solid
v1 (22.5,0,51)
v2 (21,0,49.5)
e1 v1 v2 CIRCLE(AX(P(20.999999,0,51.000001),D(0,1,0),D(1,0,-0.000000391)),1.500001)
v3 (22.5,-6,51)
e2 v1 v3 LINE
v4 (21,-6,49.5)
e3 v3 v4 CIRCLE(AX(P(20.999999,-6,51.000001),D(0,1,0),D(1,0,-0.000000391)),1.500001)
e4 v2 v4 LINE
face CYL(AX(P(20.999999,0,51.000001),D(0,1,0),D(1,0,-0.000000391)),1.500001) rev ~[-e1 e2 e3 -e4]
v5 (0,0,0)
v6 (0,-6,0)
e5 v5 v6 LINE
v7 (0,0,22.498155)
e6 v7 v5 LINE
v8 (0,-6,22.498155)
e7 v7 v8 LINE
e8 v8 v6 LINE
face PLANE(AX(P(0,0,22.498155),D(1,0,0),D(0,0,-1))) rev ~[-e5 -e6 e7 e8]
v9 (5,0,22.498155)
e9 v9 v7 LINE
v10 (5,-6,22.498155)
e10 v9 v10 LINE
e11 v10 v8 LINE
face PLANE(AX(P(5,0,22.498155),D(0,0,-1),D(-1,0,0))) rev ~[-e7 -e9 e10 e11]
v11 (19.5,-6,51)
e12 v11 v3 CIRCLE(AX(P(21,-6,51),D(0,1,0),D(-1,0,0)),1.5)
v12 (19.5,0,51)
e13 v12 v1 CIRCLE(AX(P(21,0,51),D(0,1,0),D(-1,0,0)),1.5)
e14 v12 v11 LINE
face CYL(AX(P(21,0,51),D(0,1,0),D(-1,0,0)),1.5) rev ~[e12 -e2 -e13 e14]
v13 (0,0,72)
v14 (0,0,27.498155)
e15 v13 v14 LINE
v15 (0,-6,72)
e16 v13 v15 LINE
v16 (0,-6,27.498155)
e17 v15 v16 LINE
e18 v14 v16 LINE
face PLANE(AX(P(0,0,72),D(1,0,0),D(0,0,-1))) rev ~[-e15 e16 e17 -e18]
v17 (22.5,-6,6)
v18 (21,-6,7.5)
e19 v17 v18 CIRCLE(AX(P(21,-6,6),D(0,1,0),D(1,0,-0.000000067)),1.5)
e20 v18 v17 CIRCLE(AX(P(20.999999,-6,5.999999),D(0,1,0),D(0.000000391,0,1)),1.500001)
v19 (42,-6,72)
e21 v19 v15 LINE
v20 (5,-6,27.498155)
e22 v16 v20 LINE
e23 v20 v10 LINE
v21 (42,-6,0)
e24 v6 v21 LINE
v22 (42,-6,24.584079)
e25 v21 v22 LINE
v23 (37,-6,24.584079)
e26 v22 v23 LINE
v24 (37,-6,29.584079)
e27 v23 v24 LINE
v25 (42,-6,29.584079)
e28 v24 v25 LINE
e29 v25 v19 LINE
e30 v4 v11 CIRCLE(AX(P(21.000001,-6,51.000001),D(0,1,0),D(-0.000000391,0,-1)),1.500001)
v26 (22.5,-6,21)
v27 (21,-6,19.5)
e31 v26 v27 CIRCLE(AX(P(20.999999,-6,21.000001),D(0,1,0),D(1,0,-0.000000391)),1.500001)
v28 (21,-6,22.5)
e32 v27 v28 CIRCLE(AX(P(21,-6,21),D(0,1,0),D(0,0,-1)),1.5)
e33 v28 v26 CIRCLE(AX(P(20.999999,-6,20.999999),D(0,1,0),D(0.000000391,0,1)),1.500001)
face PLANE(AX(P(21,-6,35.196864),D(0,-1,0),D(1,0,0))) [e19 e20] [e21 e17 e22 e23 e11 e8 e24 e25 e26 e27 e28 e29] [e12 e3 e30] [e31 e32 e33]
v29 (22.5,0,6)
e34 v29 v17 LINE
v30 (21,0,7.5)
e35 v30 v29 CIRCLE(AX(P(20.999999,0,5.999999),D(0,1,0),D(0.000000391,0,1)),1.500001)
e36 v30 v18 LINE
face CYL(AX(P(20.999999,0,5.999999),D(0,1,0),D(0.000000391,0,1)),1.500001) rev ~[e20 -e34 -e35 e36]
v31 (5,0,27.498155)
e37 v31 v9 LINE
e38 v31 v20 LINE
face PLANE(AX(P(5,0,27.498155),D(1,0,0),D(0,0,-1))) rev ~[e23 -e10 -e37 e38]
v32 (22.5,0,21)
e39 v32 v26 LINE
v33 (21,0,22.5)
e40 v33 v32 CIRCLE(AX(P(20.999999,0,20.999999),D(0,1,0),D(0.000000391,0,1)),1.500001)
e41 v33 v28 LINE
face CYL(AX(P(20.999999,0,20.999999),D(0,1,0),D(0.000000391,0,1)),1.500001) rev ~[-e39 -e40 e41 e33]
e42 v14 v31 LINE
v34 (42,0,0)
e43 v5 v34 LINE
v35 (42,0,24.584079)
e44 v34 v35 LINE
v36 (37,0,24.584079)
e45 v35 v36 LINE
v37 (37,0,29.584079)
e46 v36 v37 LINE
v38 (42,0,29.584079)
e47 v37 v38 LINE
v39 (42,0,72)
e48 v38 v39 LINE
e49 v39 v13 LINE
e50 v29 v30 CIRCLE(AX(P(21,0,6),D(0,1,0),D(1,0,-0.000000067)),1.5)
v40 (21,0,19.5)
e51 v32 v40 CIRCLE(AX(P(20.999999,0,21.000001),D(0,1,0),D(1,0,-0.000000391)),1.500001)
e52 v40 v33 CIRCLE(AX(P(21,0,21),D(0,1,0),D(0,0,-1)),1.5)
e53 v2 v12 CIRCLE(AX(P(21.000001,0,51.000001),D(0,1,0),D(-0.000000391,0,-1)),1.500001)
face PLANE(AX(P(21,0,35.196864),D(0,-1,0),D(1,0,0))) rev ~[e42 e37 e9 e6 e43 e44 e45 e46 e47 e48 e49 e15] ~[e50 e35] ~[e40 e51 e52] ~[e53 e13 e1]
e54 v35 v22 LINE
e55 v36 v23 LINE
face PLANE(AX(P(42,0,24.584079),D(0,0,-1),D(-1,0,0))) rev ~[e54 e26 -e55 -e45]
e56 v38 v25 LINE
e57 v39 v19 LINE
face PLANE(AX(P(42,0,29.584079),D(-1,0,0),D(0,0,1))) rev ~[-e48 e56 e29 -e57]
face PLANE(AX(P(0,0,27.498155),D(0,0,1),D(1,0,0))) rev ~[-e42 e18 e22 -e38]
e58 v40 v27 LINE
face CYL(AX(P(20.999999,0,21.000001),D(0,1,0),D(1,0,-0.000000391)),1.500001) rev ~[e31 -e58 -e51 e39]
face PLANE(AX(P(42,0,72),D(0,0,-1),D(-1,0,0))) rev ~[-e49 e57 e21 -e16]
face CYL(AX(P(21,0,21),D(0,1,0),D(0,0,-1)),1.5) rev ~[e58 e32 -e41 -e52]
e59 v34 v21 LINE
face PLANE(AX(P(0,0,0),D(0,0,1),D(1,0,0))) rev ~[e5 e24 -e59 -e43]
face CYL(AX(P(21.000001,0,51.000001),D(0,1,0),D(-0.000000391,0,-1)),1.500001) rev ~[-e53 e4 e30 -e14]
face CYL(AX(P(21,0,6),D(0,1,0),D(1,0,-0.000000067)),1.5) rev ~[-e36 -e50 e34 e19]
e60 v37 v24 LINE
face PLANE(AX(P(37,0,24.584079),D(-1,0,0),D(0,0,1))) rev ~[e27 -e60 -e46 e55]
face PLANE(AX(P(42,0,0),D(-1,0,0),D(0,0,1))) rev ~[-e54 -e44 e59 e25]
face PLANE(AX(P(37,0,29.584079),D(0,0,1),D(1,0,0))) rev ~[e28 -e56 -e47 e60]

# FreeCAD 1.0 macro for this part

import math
import FreeCAD as App
import Part
import Sketcher
Q = App.Units.Quantity

doc = App.newDocument("Part")
body = doc.addObject("PartDesign::Body", "Body")

# Sketch on XZ plane
sketch1 = body.newObject("Sketcher::SketchObject", "Sketch")
sketch1.AttachmentSupport = (doc.getObject("XZ_Plane"), [""])
sketch1.MapMode = "FlatFace"
sketch1.addGeometry([
    Part.LineSegment(App.Vector(0, 22.498155, 0), App.Vector(0, 0, 0)),  # 0
    Part.LineSegment(App.Vector(0, 0, 0), App.Vector(42, 0, 0)),  # 1
    Part.LineSegment(App.Vector(42, 0, 0), App.Vector(42, 24.584079, 0)),  # 2
    Part.LineSegment(App.Vector(42, 24.584079, 0), App.Vector(37, 24.584079, 0)),  # 3
    Part.LineSegment(App.Vector(37, 24.584079, 0), App.Vector(37, 29.584079, 0)),  # 4
    Part.LineSegment(App.Vector(37, 29.584079, 0), App.Vector(42, 29.584079, 0)),  # 5
    Part.LineSegment(App.Vector(42, 29.584079, 0), App.Vector(42, 72, 0)),  # 6
    Part.LineSegment(App.Vector(42, 72, 0), App.Vector(0, 72, 0)),  # 7
    Part.LineSegment(App.Vector(0, 72, 0), App.Vector(0, 27.498155, 0)),  # 8
    Part.LineSegment(App.Vector(0, 27.498155, 0), App.Vector(5, 27.498155, 0)),  # 9
    Part.LineSegment(App.Vector(5, 27.498155, 0), App.Vector(5, 22.498155, 0)),  # 10
    Part.LineSegment(App.Vector(5, 22.498155, 0), App.Vector(0, 22.498155, 0)),  # 11
    Part.ArcOfCircle(Part.Circle(App.Vector(20.999999, 5.999999, 0), App.Vector(0, 0, 1), 1.500001), math.radians(0.000022), math.radians(89.999978)),  # 12
    Part.ArcOfCircle(Part.Circle(App.Vector(21, 6, 0), App.Vector(0, 0, 1), 1.5), math.radians(90.000004), math.radians(359.999996)),  # 13
    Part.ArcOfCircle(Part.Circle(App.Vector(20.999999, 21.000001, 0), App.Vector(0, 0, 1), 1.500001), math.radians(-89.999978), math.radians(-0.000022)),  # 14
    Part.ArcOfCircle(Part.Circle(App.Vector(21, 21, 0), App.Vector(0, 0, 1), 1.5), math.radians(90), math.radians(270)),  # 15
    Part.ArcOfCircle(Part.Circle(App.Vector(20.999999, 20.999999, 0), App.Vector(0, 0, 1), 1.500001), math.radians(0.000022), math.radians(89.999978)),  # 16
    Part.ArcOfCircle(Part.Circle(App.Vector(20.999999, 51.000001, 0), App.Vector(0, 0, 1), 1.500001), math.radians(-89.999978), math.radians(-0.000022)),  # 17
    Part.ArcOfCircle(Part.Circle(App.Vector(21.000001, 51.000001, 0), App.Vector(0, 0, 1), 1.500001), math.radians(-179.999978), math.radians(-90.000022)),  # 18
    Part.ArcOfCircle(Part.Circle(App.Vector(21, 51, 0), App.Vector(0, 0, 1), 1.5), math.radians(0), math.radians(180)),  # 19
], False)
sketch1.addConstraint([
    Sketcher.Constraint("Coincident", 0, 2, 1, 1),
    Sketcher.Constraint("Coincident", 1, 2, 2, 1),
    Sketcher.Constraint("Coincident", 2, 2, 3, 1),
    Sketcher.Constraint("Coincident", 3, 2, 4, 1),
    Sketcher.Constraint("Coincident", 4, 2, 5, 1),
    Sketcher.Constraint("Coincident", 5, 2, 6, 1),
    Sketcher.Constraint("Coincident", 6, 2, 7, 1),
    Sketcher.Constraint("Coincident", 7, 2, 8, 1),
    Sketcher.Constraint("Coincident", 8, 2, 9, 1),
    Sketcher.Constraint("Coincident", 9, 2, 10, 1),
    Sketcher.Constraint("Coincident", 10, 2, 11, 1),
    Sketcher.Constraint("Coincident", 11, 2, 0, 1),
    Sketcher.Constraint("Tangent", 12, 1, 13, 2),
    Sketcher.Constraint("Coincident", 13, 1, 12, 2),
    Sketcher.Constraint("Tangent", 14, 1, 15, 2),
    Sketcher.Constraint("Tangent", 15, 1, 16, 2),
    Sketcher.Constraint("Tangent", 16, 1, 14, 2),
    Sketcher.Constraint("Tangent", 17, 1, 18, 2),
    Sketcher.Constraint("Tangent", 18, 1, 19, 2),
    Sketcher.Constraint("Tangent", 19, 1, 17, 2),
    Sketcher.Constraint("Vertical", 0),
    Sketcher.Constraint("Horizontal", 1),
    Sketcher.Constraint("Vertical", 2),
    Sketcher.Constraint("Horizontal", 3),
    Sketcher.Constraint("Vertical", 4),
    Sketcher.Constraint("Horizontal", 5),
    Sketcher.Constraint("Vertical", 6),
    Sketcher.Constraint("Horizontal", 7),
    Sketcher.Constraint("Vertical", 8),
    Sketcher.Constraint("Horizontal", 9),
    Sketcher.Constraint("Vertical", 10),
    Sketcher.Constraint("Horizontal", 11),
    Sketcher.Constraint("Coincident", 0, 2, -1, 1),
    Sketcher.Constraint("Equal", 13, 14),
    Sketcher.Constraint("Equal", 16, 17),
    Sketcher.Constraint("PointOnObject", 7, 2, -2),
    Sketcher.Constraint("Horizontal", 13, 3, 12, 1),
    Sketcher.Constraint("Horizontal", 15, 3, 16, 1),
    Sketcher.Constraint("Horizontal", 19, 3, 18, 1),
    Sketcher.Constraint("Horizontal", 18, 1, 19, 1),
    Sketcher.Constraint("Vertical", 13, 3, 14, 3),
    Sketcher.Constraint("Vertical", 16, 3, 17, 3),
    Sketcher.Constraint("Vertical", 2, 2, 5, 2),
    Sketcher.Constraint("Vertical", 19, 3, 13, 1),
    Sketcher.Constraint("Vertical", 13, 1, 14, 1),
    Sketcher.Constraint("Vertical", 14, 1, 15, 1),
    Sketcher.Constraint("Vertical", 15, 1, 17, 1),
    Sketcher.Constraint("Equal", 5, 9),
    Sketcher.Constraint("Equal", 11, 4),
    Sketcher.Constraint("Equal", 4, 10),
    Sketcher.Constraint("Radius", 12, Q("1.500001 mm")),
    Sketcher.Constraint("DistanceX", 1, 1, 1, 2, Q("42 mm")),
    Sketcher.Constraint("DistanceX", 3, 2, 3, 1, Q("5 mm")),
    Sketcher.Constraint("DistanceX", -1, 1, 12, 3, Q("20.999999 mm")),
    Sketcher.Constraint("DistanceY", -1, 1, 12, 3, Q("5.999999 mm")),
    Sketcher.Constraint("DistanceY", -1, 1, 14, 3, Q("21.000001 mm")),
    Sketcher.Constraint("DistanceY", -1, 1, 17, 3, Q("51.000001 mm")),
    Sketcher.Constraint("DistanceY", -1, 1, 6, 2, Q("72 mm")),
    Sketcher.Constraint("DistanceY", 2, 1, 2, 2, Q("24.584079 mm")),
    Sketcher.Constraint("DistanceY", 0, 2, 0, 1, Q("22.498155 mm")),
])
pad1 = body.newObject("PartDesign::Pad", "Pad")
pad1.Profile = sketch1
pad1.Length = 6

doc.recompute()
